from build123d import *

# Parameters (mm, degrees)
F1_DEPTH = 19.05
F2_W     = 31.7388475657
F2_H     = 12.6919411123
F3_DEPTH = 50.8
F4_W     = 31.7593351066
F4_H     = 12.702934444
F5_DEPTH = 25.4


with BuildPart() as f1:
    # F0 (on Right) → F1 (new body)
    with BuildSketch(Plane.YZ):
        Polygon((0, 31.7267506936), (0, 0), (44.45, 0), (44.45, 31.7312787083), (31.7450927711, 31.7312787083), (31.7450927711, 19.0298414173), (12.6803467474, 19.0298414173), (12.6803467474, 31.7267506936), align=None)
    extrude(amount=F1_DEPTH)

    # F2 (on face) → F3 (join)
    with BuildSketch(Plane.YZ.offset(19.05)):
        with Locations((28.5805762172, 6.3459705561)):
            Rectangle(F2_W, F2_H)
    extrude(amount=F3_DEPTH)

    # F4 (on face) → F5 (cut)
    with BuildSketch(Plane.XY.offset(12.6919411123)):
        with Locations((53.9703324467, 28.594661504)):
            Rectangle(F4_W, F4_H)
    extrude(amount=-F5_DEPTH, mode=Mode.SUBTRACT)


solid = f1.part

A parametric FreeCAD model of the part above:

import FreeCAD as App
import Part
import Sketcher

V = App.Vector
Q = App.Units.Quantity


def add_polygon(sketch, points):
    """Adds a closed chain of lines whose ends are joined by coincident constraints."""
    first, n = sketch.GeometryCount, len(points)
    for a, b in zip(points, points[1:] + points[:1]):
        sketch.addGeometry(Part.LineSegment(App.Vector(*a, 0), App.Vector(*b, 0)), False)
    for i in range(n):
        sketch.addConstraint(Sketcher.Constraint("Coincident", first + i, 2, first + (i + 1) % n, 1))

doc = App.newDocument("Part")
body = doc.addObject("PartDesign::Body", "Body")

# Sketch on YZ plane
sketch1 = body.newObject("Sketcher::SketchObject", "Sketch")
sketch1.AttachmentSupport = (doc.getObject("YZ_Plane"), [""])
sketch1.MapMode = "FlatFace"
add_polygon(sketch1, [(0, 31.726751), (0, 0), (44.45, 0), (44.45, 31.731279), (31.745093, 31.731279), (31.745093, 19.029841), (12.680347, 19.029841), (12.680347, 31.726751)])  # lines 0-7
sketch1.addConstraint(Sketcher.Constraint("Vertical", 0))
sketch1.addConstraint(Sketcher.Constraint("Horizontal", 1))
sketch1.addConstraint(Sketcher.Constraint("Vertical", 2))
sketch1.addConstraint(Sketcher.Constraint("Horizontal", 3))
sketch1.addConstraint(Sketcher.Constraint("Vertical", 4))
sketch1.addConstraint(Sketcher.Constraint("Horizontal", 5))
sketch1.addConstraint(Sketcher.Constraint("Vertical", 6))
sketch1.addConstraint(Sketcher.Constraint("Horizontal", 7))
sketch1.addConstraint(Sketcher.Constraint("Coincident", 0, 2, -1, 1))
sketch1.addConstraint(Sketcher.Constraint("DistanceX", 1, 1, 1, 2, Q("1.75 in")))
sketch1.addConstraint(Sketcher.Constraint("DistanceY", 0, 2, 0, 1, Q("31.726751 mm")))
sketch1.addConstraint(Sketcher.Constraint("DistanceY", 2, 1, 2, 2, Q("31.731279 mm")))
sketch1.addConstraint(Sketcher.Constraint("DistanceY", 6, 1, 6, 2, Q("12.696909 mm")))
sketch1.addConstraint(Sketcher.Constraint("DistanceX", 3, 2, 3, 1, Q("12.704907 mm")))
sketch1.addConstraint(Sketcher.Constraint("DistanceX", 5, 2, 5, 1, Q("19.064746 mm")))
pad1 = body.newObject("PartDesign::Pad", "Pad")
pad1.Profile = sketch1
pad1.Length = Q("0.75 in")

# Sketch on YZ plane
sketch2 = body.newObject("Sketcher::SketchObject", "Sketch001")
sketch2.AttachmentSupport = (doc.getObject("YZ_Plane"), [""])
sketch2.MapMode = "FlatFace"
sketch2.AttachmentOffset = App.Placement(V(0, 0, 0.75 * 25.4), App.Rotation())
add_polygon(sketch2, [(12.711152, 12.691941), (12.711152, 0), (44.45, 0), (44.45, 12.691941)])  # lines 0-3
sketch2.addConstraint(Sketcher.Constraint("Vertical", 0))
sketch2.addConstraint(Sketcher.Constraint("Horizontal", 1))
sketch2.addConstraint(Sketcher.Constraint("Vertical", 2))
sketch2.addConstraint(Sketcher.Constraint("Horizontal", 3))
sketch2.addConstraint(Sketcher.Constraint("PointOnObject", 0, 2, -1))
sketch2.addConstraint(Sketcher.Constraint("DistanceX", -1, 1, 1, 2, Q("1.75 in")))
sketch2.addConstraint(Sketcher.Constraint("DistanceY", 0, 2, 0, 1, Q("12.691941 mm")))
sketch2.addConstraint(Sketcher.Constraint("DistanceX", 1, 1, 1, 2, Q("31.738848 mm")))
pad2 = body.newObject("PartDesign::Pad", "Pad001")
pad2.Profile = sketch2
pad2.Length = Q("2 in")

# Sketch on XY plane
sketch3 = body.newObject("Sketcher::SketchObject", "Sketch002")
sketch3.AttachmentSupport = (doc.getObject("XY_Plane"), [""])
sketch3.MapMode = "FlatFace"
sketch3.AttachmentOffset = App.Placement(V(0, 0, 12.691941), App.Rotation())
add_polygon(sketch3, [(38.090665, 34.946129), (38.090665, 22.243194), (69.85, 22.243194), (69.85, 34.946129)])  # lines 0-3
sketch3.addConstraint(Sketcher.Constraint("Vertical", 0))
sketch3.addConstraint(Sketcher.Constraint("Horizontal", 1))
sketch3.addConstraint(Sketcher.Constraint("Vertical", 2))
sketch3.addConstraint(Sketcher.Constraint("Horizontal", 3))
sketch3.addConstraint(Sketcher.Constraint("DistanceX", -1, 1, 1, 2, Q("2.75 in")))
sketch3.addConstraint(Sketcher.Constraint("DistanceX", 1, 1, 1, 2, Q("31.759335 mm")))
sketch3.addConstraint(Sketcher.Constraint("DistanceY", 0, 2, 0, 1, Q("12.702934 mm")))
sketch3.addConstraint(Sketcher.Constraint("DistanceY", -1, 1, 2, 2, Q("34.946129 mm")))
pocket1 = body.newObject("PartDesign::Pocket", "Pocket")
pocket1.Profile = sketch3
pocket1.Length = Q("1 in")

doc.recompute()
